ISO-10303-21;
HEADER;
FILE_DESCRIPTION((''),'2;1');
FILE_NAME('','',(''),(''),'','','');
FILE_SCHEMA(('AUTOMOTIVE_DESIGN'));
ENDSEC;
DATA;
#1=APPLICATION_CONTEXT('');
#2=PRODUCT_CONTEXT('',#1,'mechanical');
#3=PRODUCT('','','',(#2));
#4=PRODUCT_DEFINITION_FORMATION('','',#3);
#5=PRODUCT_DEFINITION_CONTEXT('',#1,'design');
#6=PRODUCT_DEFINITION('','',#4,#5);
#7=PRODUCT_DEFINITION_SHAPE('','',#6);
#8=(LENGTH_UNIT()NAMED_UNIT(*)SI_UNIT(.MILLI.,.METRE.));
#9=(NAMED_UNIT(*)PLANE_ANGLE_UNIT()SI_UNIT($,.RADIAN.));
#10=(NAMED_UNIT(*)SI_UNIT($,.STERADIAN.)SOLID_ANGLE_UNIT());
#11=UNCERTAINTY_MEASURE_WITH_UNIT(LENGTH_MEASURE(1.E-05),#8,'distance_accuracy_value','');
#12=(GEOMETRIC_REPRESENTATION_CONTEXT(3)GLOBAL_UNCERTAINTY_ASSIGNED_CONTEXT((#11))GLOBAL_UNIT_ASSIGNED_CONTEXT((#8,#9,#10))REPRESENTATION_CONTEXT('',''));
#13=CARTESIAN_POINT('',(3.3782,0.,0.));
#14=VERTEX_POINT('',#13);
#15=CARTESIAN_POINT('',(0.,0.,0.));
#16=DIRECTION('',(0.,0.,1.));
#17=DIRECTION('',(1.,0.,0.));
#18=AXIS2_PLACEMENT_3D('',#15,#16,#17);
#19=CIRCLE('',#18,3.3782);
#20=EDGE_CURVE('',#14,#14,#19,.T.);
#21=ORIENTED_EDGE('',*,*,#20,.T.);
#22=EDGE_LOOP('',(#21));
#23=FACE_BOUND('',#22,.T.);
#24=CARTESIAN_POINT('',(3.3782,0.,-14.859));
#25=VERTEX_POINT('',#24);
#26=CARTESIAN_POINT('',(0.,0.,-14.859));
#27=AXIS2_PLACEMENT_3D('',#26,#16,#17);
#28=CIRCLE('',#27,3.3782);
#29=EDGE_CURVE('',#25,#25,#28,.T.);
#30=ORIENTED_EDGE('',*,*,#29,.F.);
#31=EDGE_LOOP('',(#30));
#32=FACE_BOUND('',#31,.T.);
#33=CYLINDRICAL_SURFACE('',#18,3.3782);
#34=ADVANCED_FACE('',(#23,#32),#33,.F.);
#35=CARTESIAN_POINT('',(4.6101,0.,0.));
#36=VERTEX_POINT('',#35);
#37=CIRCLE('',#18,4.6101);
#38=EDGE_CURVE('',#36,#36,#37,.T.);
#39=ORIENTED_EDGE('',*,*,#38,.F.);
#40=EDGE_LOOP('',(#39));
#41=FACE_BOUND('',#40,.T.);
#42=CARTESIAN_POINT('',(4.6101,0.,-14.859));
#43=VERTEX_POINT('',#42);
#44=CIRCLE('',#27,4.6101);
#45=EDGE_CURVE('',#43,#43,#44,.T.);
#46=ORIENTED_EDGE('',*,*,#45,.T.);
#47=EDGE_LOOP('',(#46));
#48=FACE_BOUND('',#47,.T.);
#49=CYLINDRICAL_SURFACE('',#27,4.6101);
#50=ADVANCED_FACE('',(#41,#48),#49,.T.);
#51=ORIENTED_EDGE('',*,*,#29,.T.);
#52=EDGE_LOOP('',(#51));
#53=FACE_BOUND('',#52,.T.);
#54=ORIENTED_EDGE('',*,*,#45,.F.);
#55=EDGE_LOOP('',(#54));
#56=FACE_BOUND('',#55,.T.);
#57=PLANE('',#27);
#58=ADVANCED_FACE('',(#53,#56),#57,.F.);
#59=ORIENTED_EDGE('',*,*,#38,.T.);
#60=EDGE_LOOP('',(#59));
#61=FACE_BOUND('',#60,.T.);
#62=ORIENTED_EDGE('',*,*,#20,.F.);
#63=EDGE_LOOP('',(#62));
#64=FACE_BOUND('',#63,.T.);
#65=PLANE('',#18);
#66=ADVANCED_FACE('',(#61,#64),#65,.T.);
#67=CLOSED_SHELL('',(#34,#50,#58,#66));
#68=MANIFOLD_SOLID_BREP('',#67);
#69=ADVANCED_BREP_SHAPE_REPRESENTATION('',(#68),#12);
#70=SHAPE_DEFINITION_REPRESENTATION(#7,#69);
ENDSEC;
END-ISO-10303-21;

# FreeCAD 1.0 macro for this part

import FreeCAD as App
import Part
import Sketcher

V = App.Vector
Q = App.Units.Quantity

doc = App.newDocument("Part")
body = doc.addObject("PartDesign::Body", "Body")

# Sketch on XY plane
sketch1 = body.newObject("Sketcher::SketchObject", "Sketch")
sketch1.AttachmentSupport = (doc.getObject("XY_Plane"), [""])
sketch1.MapMode = "FlatFace"
sketch1.addGeometry(Part.Circle(V(0, 0, 0), V(0, 0, 1), 4.6), False)
sketch1.addConstraint([
    Sketcher.Constraint("Coincident", 0, 3, -1, 1),
    Sketcher.Constraint("Diameter", 0, Q("0.363 in")),
])
pad1 = body.newObject("PartDesign::Pad", "Pad")
pad1.Profile = sketch1
pad1.Length = Q("0.585 in")
pad1.Reversed = True

# Sketch on XY plane
sketch2 = body.newObject("Sketcher::SketchObject", "Sketch001")
sketch2.AttachmentSupport = (doc.getObject("XY_Plane"), [""])
sketch2.MapMode = "FlatFace"
sketch2.addGeometry(Part.Circle(V(0, 0, 0), V(0, 0, 1), 3.4), False)
sketch2.addConstraint([
    Sketcher.Constraint("Coincident", 0, 3, -1, 1),
    Sketcher.Constraint("Diameter", 0, Q("0.266 in")),
])
doc.recompute()
hole = body.newObject("PartDesign::Hole", "Hole")
hole.Profile = sketch2
hole.ThreadType = "None"
hole.Diameter = Q("0.266 in")
hole.DepthType = "ThroughAll"

doc.recompute()
